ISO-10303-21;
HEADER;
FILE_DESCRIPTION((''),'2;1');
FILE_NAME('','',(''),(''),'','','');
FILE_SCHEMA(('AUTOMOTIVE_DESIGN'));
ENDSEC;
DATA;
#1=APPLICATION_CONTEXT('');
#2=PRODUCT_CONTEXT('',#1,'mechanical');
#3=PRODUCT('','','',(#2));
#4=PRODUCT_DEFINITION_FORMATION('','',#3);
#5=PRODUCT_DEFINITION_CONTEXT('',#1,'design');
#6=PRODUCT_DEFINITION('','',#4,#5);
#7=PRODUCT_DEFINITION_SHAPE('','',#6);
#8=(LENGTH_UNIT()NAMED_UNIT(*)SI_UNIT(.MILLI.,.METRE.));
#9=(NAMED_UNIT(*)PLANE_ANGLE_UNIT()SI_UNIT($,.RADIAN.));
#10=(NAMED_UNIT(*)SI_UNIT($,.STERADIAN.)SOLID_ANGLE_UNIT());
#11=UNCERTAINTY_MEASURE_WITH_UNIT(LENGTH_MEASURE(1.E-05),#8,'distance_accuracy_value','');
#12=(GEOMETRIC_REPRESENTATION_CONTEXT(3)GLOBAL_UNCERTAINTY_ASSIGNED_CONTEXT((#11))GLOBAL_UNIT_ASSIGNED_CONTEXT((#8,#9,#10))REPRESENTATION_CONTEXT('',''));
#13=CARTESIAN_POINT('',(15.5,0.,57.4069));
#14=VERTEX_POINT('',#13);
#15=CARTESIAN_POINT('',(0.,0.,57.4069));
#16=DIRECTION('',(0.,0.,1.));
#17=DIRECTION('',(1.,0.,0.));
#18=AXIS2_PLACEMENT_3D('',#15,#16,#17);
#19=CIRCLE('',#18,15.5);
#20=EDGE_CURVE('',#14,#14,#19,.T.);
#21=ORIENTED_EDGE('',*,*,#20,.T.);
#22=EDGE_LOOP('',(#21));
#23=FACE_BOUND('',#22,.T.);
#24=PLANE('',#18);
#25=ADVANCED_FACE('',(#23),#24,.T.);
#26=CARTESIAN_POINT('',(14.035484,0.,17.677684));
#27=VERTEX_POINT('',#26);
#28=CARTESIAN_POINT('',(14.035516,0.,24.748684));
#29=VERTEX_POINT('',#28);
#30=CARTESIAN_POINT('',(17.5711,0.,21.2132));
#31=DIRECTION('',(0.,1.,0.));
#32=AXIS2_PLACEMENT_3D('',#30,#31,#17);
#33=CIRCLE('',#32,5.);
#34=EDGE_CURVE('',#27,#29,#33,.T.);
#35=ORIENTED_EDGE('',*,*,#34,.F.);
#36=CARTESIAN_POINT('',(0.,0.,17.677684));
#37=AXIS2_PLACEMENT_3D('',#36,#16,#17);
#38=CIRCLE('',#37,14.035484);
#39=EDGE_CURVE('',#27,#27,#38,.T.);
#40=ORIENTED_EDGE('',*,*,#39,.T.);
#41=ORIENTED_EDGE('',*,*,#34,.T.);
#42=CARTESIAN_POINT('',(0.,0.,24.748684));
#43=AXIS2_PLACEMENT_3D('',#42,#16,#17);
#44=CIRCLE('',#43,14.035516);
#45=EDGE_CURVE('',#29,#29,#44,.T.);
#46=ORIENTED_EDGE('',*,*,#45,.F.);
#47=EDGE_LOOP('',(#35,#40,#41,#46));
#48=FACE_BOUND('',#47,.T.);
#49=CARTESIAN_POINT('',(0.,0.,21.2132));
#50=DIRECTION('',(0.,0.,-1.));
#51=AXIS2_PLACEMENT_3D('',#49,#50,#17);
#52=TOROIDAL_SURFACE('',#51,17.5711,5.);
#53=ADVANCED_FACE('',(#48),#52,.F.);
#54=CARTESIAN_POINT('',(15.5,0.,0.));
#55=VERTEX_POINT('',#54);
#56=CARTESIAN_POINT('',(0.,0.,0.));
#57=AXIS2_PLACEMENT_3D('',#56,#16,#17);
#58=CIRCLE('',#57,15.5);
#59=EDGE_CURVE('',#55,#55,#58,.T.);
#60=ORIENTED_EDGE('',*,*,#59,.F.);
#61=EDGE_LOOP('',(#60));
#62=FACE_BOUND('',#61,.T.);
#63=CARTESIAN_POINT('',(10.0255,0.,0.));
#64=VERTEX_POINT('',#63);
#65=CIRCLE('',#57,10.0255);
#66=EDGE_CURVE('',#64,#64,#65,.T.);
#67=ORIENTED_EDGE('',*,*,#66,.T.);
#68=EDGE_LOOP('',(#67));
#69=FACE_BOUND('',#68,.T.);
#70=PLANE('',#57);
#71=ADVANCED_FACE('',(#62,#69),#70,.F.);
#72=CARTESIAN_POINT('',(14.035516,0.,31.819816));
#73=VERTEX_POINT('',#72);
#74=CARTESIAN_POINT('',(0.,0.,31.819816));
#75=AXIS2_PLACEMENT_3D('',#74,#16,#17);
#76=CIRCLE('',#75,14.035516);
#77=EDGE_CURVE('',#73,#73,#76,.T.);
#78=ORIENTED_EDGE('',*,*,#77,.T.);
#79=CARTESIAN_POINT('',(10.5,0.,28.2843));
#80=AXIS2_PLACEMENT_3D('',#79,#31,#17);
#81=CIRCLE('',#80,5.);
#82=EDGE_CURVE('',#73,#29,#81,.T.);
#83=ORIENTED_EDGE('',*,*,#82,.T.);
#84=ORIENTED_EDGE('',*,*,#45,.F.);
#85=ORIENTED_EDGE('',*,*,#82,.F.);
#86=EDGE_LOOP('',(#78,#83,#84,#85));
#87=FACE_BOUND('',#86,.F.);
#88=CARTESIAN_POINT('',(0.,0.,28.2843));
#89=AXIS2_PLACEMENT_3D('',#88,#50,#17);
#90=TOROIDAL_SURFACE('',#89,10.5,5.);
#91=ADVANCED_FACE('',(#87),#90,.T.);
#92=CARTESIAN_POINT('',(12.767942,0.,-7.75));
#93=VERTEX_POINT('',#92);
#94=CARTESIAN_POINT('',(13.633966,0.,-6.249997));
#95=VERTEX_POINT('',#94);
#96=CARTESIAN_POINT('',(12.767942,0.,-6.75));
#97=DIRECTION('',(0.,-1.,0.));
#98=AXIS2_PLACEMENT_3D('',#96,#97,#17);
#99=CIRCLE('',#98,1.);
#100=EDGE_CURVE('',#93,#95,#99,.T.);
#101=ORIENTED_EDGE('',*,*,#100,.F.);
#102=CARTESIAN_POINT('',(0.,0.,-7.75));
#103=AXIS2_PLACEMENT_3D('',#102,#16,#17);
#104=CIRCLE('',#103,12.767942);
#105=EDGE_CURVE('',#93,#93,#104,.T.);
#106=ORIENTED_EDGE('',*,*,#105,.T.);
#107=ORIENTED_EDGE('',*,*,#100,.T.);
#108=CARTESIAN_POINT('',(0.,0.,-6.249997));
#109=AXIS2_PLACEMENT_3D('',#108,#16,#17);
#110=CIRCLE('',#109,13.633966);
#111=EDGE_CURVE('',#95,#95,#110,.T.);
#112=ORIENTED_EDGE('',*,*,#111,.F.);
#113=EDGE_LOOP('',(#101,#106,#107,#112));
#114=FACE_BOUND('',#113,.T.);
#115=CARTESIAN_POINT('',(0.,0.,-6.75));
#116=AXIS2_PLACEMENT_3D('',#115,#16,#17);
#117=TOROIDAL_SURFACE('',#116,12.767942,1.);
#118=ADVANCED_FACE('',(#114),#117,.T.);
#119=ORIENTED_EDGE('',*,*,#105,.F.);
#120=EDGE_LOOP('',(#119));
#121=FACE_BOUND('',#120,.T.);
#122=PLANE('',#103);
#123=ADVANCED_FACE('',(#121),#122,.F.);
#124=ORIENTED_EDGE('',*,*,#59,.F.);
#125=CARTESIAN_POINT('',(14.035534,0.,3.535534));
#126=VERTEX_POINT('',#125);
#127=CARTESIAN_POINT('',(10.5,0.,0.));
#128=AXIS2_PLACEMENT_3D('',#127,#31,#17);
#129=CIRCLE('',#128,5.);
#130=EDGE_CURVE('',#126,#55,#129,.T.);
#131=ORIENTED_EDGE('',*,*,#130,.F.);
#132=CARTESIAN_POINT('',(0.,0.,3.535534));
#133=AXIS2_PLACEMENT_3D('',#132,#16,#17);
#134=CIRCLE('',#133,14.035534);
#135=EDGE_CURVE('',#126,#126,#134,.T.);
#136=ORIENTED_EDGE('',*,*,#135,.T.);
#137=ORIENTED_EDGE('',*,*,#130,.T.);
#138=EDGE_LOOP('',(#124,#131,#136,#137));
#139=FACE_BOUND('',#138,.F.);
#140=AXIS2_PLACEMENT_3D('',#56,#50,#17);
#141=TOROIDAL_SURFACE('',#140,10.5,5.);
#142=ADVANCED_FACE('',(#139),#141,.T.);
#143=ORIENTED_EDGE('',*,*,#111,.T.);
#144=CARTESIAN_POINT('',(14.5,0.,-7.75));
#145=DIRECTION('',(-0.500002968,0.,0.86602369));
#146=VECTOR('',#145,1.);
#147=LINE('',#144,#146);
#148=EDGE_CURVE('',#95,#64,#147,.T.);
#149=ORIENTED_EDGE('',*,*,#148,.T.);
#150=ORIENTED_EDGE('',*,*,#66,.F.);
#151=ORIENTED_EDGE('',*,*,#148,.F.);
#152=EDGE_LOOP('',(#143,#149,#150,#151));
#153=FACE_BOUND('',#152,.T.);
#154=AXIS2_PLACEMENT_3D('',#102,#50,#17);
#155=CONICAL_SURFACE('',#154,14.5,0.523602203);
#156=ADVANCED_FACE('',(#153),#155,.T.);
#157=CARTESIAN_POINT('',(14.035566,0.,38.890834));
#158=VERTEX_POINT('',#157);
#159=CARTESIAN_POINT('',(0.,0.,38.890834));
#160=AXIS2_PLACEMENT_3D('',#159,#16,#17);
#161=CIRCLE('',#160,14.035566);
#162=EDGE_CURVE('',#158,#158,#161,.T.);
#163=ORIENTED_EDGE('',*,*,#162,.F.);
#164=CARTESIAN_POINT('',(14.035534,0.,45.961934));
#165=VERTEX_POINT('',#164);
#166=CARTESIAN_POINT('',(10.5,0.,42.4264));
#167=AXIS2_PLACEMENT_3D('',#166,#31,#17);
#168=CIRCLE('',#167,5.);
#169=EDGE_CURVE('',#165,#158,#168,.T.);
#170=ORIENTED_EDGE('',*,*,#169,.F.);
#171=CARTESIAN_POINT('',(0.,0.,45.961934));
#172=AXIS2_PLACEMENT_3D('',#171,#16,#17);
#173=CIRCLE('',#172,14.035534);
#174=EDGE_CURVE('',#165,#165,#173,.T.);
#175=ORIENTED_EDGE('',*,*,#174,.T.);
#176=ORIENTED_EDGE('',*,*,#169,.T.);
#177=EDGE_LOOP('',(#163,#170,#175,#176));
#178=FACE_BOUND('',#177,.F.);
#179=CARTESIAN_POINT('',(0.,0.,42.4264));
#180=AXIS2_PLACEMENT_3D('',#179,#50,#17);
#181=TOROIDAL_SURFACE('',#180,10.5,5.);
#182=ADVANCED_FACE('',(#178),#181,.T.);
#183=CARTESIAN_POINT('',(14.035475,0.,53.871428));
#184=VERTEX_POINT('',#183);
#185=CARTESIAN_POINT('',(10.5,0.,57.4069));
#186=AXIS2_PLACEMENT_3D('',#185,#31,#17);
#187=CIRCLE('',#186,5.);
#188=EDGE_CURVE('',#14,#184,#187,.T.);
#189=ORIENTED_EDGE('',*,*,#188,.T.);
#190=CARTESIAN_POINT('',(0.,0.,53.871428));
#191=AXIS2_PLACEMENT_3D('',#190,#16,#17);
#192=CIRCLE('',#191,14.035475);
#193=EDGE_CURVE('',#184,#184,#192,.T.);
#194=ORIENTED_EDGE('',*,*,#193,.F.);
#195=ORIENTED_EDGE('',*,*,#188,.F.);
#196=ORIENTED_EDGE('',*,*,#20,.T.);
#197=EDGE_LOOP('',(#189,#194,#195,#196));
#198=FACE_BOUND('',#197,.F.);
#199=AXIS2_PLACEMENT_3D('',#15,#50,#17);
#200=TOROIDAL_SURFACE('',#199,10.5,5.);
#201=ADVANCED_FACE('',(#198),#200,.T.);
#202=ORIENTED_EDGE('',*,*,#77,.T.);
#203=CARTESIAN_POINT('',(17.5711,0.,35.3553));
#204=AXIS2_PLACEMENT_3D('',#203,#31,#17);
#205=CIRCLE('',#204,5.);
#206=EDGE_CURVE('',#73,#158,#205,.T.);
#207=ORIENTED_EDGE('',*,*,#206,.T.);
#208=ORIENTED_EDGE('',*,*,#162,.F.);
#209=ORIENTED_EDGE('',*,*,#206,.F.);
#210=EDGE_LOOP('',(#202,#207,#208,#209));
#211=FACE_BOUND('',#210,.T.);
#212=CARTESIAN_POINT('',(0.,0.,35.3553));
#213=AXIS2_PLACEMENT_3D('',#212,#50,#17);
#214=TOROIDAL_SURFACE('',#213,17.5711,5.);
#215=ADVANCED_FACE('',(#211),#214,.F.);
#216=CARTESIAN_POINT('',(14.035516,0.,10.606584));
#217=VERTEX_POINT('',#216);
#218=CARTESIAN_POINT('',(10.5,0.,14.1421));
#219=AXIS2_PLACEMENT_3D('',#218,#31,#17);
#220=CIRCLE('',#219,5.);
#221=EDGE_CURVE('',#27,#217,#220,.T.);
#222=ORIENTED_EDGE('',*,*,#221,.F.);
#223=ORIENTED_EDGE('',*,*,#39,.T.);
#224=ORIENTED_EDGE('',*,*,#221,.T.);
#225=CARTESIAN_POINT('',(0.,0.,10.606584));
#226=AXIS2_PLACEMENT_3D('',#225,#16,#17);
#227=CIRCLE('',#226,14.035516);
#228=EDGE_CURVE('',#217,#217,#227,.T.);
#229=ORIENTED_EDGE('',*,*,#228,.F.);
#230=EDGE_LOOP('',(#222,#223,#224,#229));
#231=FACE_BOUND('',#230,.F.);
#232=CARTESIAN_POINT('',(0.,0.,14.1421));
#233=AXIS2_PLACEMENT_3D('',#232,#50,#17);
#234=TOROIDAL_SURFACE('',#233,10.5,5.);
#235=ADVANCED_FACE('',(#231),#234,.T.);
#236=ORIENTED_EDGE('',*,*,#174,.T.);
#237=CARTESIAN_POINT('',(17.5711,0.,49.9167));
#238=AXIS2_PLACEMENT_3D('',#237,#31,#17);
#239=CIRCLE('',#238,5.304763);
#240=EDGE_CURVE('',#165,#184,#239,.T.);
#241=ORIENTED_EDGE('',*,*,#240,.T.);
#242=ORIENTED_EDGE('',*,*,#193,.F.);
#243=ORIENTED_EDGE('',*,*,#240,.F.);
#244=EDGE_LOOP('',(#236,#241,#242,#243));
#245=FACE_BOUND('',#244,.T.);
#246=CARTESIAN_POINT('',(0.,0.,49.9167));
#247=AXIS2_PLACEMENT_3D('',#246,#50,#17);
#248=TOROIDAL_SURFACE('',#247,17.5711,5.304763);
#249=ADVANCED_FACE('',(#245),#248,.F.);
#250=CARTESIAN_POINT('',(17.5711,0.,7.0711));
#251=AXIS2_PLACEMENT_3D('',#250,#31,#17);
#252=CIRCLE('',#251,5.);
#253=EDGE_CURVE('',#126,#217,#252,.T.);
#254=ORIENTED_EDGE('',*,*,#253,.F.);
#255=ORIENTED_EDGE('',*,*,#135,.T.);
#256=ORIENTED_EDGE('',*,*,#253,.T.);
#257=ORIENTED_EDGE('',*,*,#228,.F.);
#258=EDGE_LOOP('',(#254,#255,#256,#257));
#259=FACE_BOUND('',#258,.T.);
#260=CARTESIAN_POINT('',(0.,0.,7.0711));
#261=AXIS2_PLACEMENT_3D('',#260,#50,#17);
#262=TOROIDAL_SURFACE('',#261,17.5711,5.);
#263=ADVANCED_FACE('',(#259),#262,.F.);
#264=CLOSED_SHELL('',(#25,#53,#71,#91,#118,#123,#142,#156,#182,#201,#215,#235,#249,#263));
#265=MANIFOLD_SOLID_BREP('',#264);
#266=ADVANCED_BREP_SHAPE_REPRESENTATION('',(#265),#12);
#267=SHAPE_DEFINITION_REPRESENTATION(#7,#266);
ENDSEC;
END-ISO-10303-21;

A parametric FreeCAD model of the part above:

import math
import FreeCAD as App
import Part
import Sketcher
from FreeCAD import Vector
Q = App.Units.Quantity


def edges_at(feature, points):
    """Names of the edges that pass closest to the given points."""
    edges = feature.Shape.Edges
    near = lambda p: min(range(len(edges)), key=lambda i: edges[i].distToShape(Part.Vertex(*p))[0])
    return sorted({f"Edge{near(p) + 1}" for p in points})

doc = App.newDocument("Part")
params = doc.addObject("Spreadsheet::Sheet", "Params")
for row, (alias, value) in enumerate([
    ("sketch1_radius", "5 mm"),
    ("sketch1_width", "15.5 mm"),
    ("sketch1_width2", "14.5 mm"),
    ("revolution_angle", "360 deg"),
    ("fillet_radius", "1 mm"),
], start=1):
    params.set(f"A{row}", alias)
    params.set(f"B{row}", "=" + value)
    params.setAlias(f"B{row}", alias)

body = doc.addObject("PartDesign::Body", "Body")

# Sketch on XZ plane
sketch1 = doc.addObject("Sketcher::SketchObject", "Sketch")
body.addObject(sketch1)
sketch1.AttachmentSupport = (doc.XZ_Plane, [""])
sketch1.MapMode = "FlatFace"
sketch1.addGeometry(Part.ArcOfCircle(Part.Circle(Vector(10.5, 28.3, 0), Vector(0, 0, 1), 5), math.radians(-45), math.radians(45)), False)
sketch1.addGeometry(Part.ArcOfCircle(Part.Circle(Vector(17.6, 35.4, 0), Vector(0, 0, 1), 5), math.radians(135), math.radians(225)), False)
sketch1.addGeometry(Part.ArcOfCircle(Part.Circle(Vector(10.5, 42.4, 0), Vector(0, 0, 1), 5), math.radians(-45), math.radians(45)), False)
sketch1.addGeometry(Part.ArcOfCircle(Part.Circle(Vector(17.6, 49.9, 0), Vector(0, 0, 1), 5.3), math.radians(132), math.radians(228)), False)
sketch1.addGeometry(Part.ArcOfCircle(Part.Circle(Vector(10.5, 57.4, 0), Vector(0, 0, 1), 5), math.radians(-45), math.radians(0)), False)
sketch1.addGeometry(Part.LineSegment(Vector(15.5, 57.4, 0), Vector(0, 57.4, 0)), False)
sketch1.addGeometry(Part.LineSegment(Vector(0, 57.4, 0), Vector(0, -7.8, 0)), False)
sketch1.addGeometry(Part.LineSegment(Vector(0, -7.8, 0), Vector(14.5, -7.8, 0)), False)
sketch1.addGeometry(Part.LineSegment(Vector(14.5, -7.8, 0), Vector(10, 0, 0)), False)
sketch1.addGeometry(Part.LineSegment(Vector(10, 0, 0), Vector(15.5, 0, 0)), False)
sketch1.addGeometry(Part.ArcOfCircle(Part.Circle(Vector(10.5, 0, 0), Vector(0, 0, 1), 5), math.radians(0), math.radians(45)), False)
sketch1.addGeometry(Part.ArcOfCircle(Part.Circle(Vector(17.6, 7.1, 0), Vector(0, 0, 1), 5), math.radians(135), math.radians(225)), False)
sketch1.addGeometry(Part.ArcOfCircle(Part.Circle(Vector(10.5, 14.1, 0), Vector(0, 0, 1), 5), math.radians(-45), math.radians(45)), False)
sketch1.addGeometry(Part.ArcOfCircle(Part.Circle(Vector(17.6, 21.2, 0), Vector(0, 0, 1), 5), math.radians(135), math.radians(225)), False)
sketch1.addConstraint(Sketcher.Constraint("Tangent", 0, 2, 1, 2))
sketch1.addConstraint(Sketcher.Constraint("Tangent", 1, 1, 2, 1))
sketch1.addConstraint(Sketcher.Constraint("Coincident", 2, 2, 3, 2))
sketch1.addConstraint(Sketcher.Constraint("Coincident", 3, 1, 4, 1))
sketch1.addConstraint(Sketcher.Constraint("Coincident", 4, 2, 5, 1))
sketch1.addConstraint(Sketcher.Constraint("Coincident", 5, 2, 6, 1))
sketch1.addConstraint(Sketcher.Constraint("Coincident", 6, 2, 7, 1))
sketch1.addConstraint(Sketcher.Constraint("Coincident", 7, 2, 8, 1))
sketch1.addConstraint(Sketcher.Constraint("Coincident", 8, 2, 9, 1))
sketch1.addConstraint(Sketcher.Constraint("Coincident", 9, 2, 10, 1))
sketch1.addConstraint(Sketcher.Constraint("Tangent", 10, 2, 11, 2))
sketch1.addConstraint(Sketcher.Constraint("Tangent", 11, 1, 12, 1))
sketch1.addConstraint(Sketcher.Constraint("Tangent", 12, 2, 13, 2))
sketch1.addConstraint(Sketcher.Constraint("Tangent", 13, 1, 0, 1))
sketch1.addConstraint(Sketcher.Constraint("Horizontal", 5))
sketch1.addConstraint(Sketcher.Constraint("Vertical", 6))
sketch1.addConstraint(Sketcher.Constraint("Horizontal", 7))
sketch1.addConstraint(Sketcher.Constraint("Horizontal", 9))
sketch1.addConstraint(Sketcher.Constraint("Equal", 0, 1))
sketch1.addConstraint(Sketcher.Constraint("Equal", 1, 2))
sketch1.addConstraint(Sketcher.Constraint("Equal", 2, 4))
sketch1.addConstraint(Sketcher.Constraint("Equal", 4, 10))
sketch1.addConstraint(Sketcher.Constraint("Equal", 10, 11))
sketch1.addConstraint(Sketcher.Constraint("Equal", 11, 12))
sketch1.addConstraint(Sketcher.Constraint("Equal", 12, 13))
sketch1.addConstraint(Sketcher.Constraint("PointOnObject", 10, 3, -1))
sketch1.addConstraint(Sketcher.Constraint("PointOnObject", 5, 2, -2))
sketch1.addConstraint(Sketcher.Constraint("PointOnObject", 8, 2, -1))
sketch1.addConstraint(Sketcher.Constraint("Vertical", 0, 3, 2, 3))
sketch1.addConstraint(Sketcher.Constraint("Vertical", 1, 3, 3, 3))
sketch1.addConstraint(Sketcher.Constraint("Vertical", 2, 3, 4, 3))
sketch1.addConstraint(Sketcher.Constraint("Vertical", 4, 3, 10, 3))
sketch1.addConstraint(Sketcher.Constraint("Vertical", 3, 3, 11, 3))
sketch1.addConstraint(Sketcher.Constraint("Vertical", 10, 3, 12, 3))
sketch1.addConstraint(Sketcher.Constraint("Vertical", 11, 3, 13, 3))
sketch1.addConstraint(Sketcher.Constraint("Vertical", 1, 1, 2, 2))
sketch1.addConstraint(Sketcher.Constraint("Vertical", 2, 2, 3, 1))
sketch1.addConstraint(Sketcher.Constraint("Radius", 0, 5.0))
sketch1.addConstraint(Sketcher.Constraint("Angle", 8, Q("120.0002 deg")))
sketch1.addConstraint(Sketcher.Constraint("DistanceX", 5, 2, 5, 1, 15.5))
sketch1.addConstraint(Sketcher.Constraint("DistanceX", 7, 1, 7, 2, 14.5))
sketch1.addConstraint(Sketcher.Constraint("Radius", 3, 5.3048))
sketch1.addConstraint(Sketcher.Constraint("DistanceY", 6, 2, 6, 1, 65.157))
sketch1.addConstraint(Sketcher.Constraint("DistanceY", 6, 2, -1, 1, 7.75))
sketch1.addConstraint(Sketcher.Constraint("DistanceX", 8, 2, 10, 2, 4.01))
sketch1.setExpression("Constraints[37]", "Params.sketch1_radius")
sketch1.setExpression("Constraints[39]", "Params.sketch1_width")
sketch1.setExpression("Constraints[40]", "Params.sketch1_width2")
revolution = doc.addObject("PartDesign::Revolution", "Revolution")
body.addObject(revolution)
revolution.Profile = sketch1
revolution.ReferenceAxis = (sketch1, ["V_Axis"])
revolution.setExpression("Angle", "Params.revolution_angle")
doc.recompute()

fillet = doc.addObject("PartDesign::Fillet", "Fillet")
body.addObject(fillet)
fillet.Base = (revolution, edges_at(revolution, [(-14.5, 0, -7.75)]))
fillet.setExpression("Radius", "Params.fillet_radius")

doc.recompute()
